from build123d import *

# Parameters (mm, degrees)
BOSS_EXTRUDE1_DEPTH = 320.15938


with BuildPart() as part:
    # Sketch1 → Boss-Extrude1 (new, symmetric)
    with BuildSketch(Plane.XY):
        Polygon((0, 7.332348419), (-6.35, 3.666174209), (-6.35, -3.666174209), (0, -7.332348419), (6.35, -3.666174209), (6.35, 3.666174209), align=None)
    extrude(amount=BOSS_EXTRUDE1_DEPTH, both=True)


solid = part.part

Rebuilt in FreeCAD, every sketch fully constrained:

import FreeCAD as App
import Part
import Sketcher
Q = App.Units.Quantity


def add_polygon(sketch, points):
    """Adds a closed chain of lines whose ends are joined by coincident constraints."""
    first, n = sketch.GeometryCount, len(points)
    for a, b in zip(points, points[1:] + points[:1]):
        sketch.addGeometry(Part.LineSegment(App.Vector(*a, 0), App.Vector(*b, 0)), False)
    for i in range(n):
        sketch.addConstraint(Sketcher.Constraint("Coincident", first + i, 2, first + (i + 1) % n, 1))

doc = App.newDocument("Part")
params = doc.addObject("Spreadsheet::Sheet", "Params")
for row, (alias, value) in enumerate([
    ("pad1_length", "640.31876 mm"),
], start=1):
    params.set(f"A{row}", alias)
    params.set(f"B{row}", "=" + value)
    params.setAlias(f"B{row}", alias)

body = doc.addObject("PartDesign::Body", "Body")

# Sketch on XY plane
sketch1 = body.newObject("Sketcher::SketchObject", "Sketch")
sketch1.AttachmentSupport = (doc.getObject("XY_Plane"), [""])
sketch1.MapMode = "FlatFace"
add_polygon(sketch1, [(0, 7), (-6, 4), (-6, -4), (0, -7), (6, -4), (6, 4)])  # lines 0-5
sketch1.addConstraint([
    Sketcher.Constraint("Vertical", 1),
    Sketcher.Constraint("Vertical", 4),
    Sketcher.Constraint("Symmetric", 0, 2, 3, 2, -1, 1),
    Sketcher.Constraint("Symmetric", 2, 2, 5, 2, -1, 1),
    Sketcher.Constraint("PointOnObject", 2, 2, -2),
    Sketcher.Constraint("Parallel", 2, 5),
    Sketcher.Constraint("Horizontal", 1, 2, 3, 2),
    Sketcher.Constraint("Angle", 0, Q("-150 deg")),
    Sketcher.Constraint("DistanceX", 1, 2, 3, 2, Q("12.7 mm")),
    Sketcher.Constraint("DistanceY", 1, 2, 1, 1, Q("7.332348 mm")),
])
pad1 = body.newObject("PartDesign::Pad", "Pad")
pad1.Profile = sketch1
pad1.setExpression("Length", "Params.pad1_length")
pad1.Midplane = True

doc.recompute()
